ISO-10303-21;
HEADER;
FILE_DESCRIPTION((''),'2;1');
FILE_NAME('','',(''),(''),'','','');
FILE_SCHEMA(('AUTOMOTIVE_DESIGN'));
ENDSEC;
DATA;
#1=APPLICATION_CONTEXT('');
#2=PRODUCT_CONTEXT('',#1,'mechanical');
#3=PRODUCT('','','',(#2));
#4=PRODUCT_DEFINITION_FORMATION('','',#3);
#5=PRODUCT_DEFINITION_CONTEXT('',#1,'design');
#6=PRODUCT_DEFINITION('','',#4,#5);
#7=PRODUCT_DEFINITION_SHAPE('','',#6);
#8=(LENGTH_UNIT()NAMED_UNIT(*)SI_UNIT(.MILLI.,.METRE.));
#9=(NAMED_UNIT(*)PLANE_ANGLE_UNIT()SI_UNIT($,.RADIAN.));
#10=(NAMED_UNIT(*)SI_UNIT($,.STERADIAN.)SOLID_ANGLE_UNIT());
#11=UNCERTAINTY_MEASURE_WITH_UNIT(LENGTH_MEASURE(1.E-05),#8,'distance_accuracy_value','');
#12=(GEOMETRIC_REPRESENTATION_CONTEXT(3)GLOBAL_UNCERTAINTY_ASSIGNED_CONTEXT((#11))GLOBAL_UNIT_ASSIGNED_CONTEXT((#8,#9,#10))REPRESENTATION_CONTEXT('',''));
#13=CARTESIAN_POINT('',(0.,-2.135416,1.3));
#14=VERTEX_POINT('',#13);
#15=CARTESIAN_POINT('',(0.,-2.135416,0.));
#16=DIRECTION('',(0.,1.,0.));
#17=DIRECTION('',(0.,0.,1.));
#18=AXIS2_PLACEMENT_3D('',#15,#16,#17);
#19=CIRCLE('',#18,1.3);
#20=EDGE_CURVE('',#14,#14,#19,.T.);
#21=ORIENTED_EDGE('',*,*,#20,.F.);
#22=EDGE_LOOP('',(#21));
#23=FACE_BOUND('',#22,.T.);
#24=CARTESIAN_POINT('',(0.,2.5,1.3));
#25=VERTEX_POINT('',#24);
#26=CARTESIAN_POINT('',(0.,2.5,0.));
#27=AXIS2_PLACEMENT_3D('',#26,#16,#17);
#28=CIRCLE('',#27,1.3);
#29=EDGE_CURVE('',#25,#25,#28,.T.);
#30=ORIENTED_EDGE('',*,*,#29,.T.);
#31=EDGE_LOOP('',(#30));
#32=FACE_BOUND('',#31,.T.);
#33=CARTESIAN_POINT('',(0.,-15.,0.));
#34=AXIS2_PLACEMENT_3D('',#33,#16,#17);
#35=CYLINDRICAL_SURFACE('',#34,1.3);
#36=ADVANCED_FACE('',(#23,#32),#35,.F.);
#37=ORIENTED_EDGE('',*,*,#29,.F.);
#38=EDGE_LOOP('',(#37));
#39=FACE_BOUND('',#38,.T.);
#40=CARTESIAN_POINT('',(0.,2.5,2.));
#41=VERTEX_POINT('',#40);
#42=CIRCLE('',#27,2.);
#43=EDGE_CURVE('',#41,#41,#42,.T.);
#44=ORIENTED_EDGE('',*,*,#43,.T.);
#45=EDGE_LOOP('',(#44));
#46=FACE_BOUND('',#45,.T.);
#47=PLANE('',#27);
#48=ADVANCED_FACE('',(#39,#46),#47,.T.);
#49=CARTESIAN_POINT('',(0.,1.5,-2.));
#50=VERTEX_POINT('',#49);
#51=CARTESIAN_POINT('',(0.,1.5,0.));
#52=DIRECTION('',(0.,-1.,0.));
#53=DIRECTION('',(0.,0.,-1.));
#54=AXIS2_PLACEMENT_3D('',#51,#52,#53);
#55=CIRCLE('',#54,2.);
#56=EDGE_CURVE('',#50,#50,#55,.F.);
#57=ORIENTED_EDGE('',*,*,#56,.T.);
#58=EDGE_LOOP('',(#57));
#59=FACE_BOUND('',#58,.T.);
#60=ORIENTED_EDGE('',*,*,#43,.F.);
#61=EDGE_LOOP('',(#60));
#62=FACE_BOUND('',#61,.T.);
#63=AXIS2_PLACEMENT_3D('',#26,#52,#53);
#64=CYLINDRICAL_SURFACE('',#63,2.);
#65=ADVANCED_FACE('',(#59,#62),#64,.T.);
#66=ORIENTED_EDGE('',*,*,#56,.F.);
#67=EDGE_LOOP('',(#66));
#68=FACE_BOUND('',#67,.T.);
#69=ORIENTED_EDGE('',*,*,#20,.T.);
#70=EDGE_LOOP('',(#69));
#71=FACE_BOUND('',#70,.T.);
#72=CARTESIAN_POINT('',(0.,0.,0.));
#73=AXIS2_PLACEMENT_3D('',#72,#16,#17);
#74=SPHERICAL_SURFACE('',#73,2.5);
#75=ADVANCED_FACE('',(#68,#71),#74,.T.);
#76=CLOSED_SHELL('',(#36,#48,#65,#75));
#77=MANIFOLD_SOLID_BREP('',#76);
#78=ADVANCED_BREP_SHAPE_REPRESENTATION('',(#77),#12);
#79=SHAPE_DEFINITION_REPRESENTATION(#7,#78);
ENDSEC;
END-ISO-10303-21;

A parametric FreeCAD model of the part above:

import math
import FreeCAD as App
import Part
import Sketcher
from FreeCAD import Vector
Q = App.Units.Quantity

doc = App.newDocument("Part")
body = doc.addObject("PartDesign::Body", "Body")

# Sketch on XY plane
sketch1 = body.newObject("Sketcher::SketchObject", "Sketch")
sketch1.AttachmentSupport = (doc.getObject("XY_Plane"), [""])
sketch1.MapMode = "FlatFace"
sketch1.addGeometry(Part.LineSegment(Vector(2.5, 0, 0), Vector(-2.5, 0, 0)), False)
sketch1.addGeometry(Part.ArcOfCircle(Part.Circle(Vector(0, 0, 0), Vector(0, 0, 1), 2.5), math.radians(180), math.radians(360)), False)
sketch1.addConstraint(Sketcher.Constraint("Coincident", 0, 1, 1, 2))
sketch1.addConstraint(Sketcher.Constraint("Coincident", 1, 1, 0, 2))
sketch1.addConstraint(Sketcher.Constraint("Horizontal", 0))
sketch1.addConstraint(Sketcher.Constraint("Coincident", 1, 3, -1, 1))
sketch1.addConstraint(Sketcher.Constraint("PointOnObject", 0, 1, -1))
sketch1.addConstraint(Sketcher.Constraint("Radius", 1, Q("2.5 mm")))
revolution = body.newObject("PartDesign::Revolution", "Revolution")
revolution.Profile = sketch1
revolution.ReferenceAxis = (sketch1, ["H_Axis"])
revolution.Angle = 360

# Sketch on XZ plane
sketch2 = body.newObject("Sketcher::SketchObject", "Sketch001")
sketch2.AttachmentSupport = (doc.getObject("XZ_Plane"), [""])
sketch2.MapMode = "FlatFace"
sketch2.addGeometry(Part.Circle(Vector(0, 0, 0), Vector(0, 0, 1), 1.3), False)
sketch2.addConstraint(Sketcher.Constraint("Coincident", 0, 3, -1, 1))
sketch2.addConstraint(Sketcher.Constraint("Diameter", 0, Q("2.6 mm")))
pocket1 = body.newObject("PartDesign::Pocket", "Pocket")
pocket1.Profile = sketch2
pocket1.Length = 30
pocket1.Midplane = True

# Sketch on XZ plane
sketch3 = body.newObject("Sketcher::SketchObject", "Sketch002")
sketch3.AttachmentSupport = (doc.getObject("XZ_Plane"), [""])
sketch3.MapMode = "FlatFace"
sketch3.AttachmentOffset = App.Placement(Vector(0, 0, -2.5), App.Rotation())
sketch3.addGeometry(Part.Circle(Vector(0, 0, 0), Vector(0, 0, 1), 2), False)
sketch3.addGeometry(Part.Circle(Vector(0, 0, 0), Vector(0, 0, 1), 1.3), False)
sketch3.addConstraint(Sketcher.Constraint("Coincident", 0, 3, -1, 1))
sketch3.addConstraint(Sketcher.Constraint("Coincident", 1, 3, -1, 1))
sketch3.addConstraint(Sketcher.Constraint("Diameter", 0, Q("4 mm")))
sketch3.addConstraint(Sketcher.Constraint("Diameter", 1, Q("2.6 mm")))
pad1 = body.newObject("PartDesign::Pad", "Pad")
pad1.Profile = sketch3
pad1.Length = 2.5

doc.recompute()
